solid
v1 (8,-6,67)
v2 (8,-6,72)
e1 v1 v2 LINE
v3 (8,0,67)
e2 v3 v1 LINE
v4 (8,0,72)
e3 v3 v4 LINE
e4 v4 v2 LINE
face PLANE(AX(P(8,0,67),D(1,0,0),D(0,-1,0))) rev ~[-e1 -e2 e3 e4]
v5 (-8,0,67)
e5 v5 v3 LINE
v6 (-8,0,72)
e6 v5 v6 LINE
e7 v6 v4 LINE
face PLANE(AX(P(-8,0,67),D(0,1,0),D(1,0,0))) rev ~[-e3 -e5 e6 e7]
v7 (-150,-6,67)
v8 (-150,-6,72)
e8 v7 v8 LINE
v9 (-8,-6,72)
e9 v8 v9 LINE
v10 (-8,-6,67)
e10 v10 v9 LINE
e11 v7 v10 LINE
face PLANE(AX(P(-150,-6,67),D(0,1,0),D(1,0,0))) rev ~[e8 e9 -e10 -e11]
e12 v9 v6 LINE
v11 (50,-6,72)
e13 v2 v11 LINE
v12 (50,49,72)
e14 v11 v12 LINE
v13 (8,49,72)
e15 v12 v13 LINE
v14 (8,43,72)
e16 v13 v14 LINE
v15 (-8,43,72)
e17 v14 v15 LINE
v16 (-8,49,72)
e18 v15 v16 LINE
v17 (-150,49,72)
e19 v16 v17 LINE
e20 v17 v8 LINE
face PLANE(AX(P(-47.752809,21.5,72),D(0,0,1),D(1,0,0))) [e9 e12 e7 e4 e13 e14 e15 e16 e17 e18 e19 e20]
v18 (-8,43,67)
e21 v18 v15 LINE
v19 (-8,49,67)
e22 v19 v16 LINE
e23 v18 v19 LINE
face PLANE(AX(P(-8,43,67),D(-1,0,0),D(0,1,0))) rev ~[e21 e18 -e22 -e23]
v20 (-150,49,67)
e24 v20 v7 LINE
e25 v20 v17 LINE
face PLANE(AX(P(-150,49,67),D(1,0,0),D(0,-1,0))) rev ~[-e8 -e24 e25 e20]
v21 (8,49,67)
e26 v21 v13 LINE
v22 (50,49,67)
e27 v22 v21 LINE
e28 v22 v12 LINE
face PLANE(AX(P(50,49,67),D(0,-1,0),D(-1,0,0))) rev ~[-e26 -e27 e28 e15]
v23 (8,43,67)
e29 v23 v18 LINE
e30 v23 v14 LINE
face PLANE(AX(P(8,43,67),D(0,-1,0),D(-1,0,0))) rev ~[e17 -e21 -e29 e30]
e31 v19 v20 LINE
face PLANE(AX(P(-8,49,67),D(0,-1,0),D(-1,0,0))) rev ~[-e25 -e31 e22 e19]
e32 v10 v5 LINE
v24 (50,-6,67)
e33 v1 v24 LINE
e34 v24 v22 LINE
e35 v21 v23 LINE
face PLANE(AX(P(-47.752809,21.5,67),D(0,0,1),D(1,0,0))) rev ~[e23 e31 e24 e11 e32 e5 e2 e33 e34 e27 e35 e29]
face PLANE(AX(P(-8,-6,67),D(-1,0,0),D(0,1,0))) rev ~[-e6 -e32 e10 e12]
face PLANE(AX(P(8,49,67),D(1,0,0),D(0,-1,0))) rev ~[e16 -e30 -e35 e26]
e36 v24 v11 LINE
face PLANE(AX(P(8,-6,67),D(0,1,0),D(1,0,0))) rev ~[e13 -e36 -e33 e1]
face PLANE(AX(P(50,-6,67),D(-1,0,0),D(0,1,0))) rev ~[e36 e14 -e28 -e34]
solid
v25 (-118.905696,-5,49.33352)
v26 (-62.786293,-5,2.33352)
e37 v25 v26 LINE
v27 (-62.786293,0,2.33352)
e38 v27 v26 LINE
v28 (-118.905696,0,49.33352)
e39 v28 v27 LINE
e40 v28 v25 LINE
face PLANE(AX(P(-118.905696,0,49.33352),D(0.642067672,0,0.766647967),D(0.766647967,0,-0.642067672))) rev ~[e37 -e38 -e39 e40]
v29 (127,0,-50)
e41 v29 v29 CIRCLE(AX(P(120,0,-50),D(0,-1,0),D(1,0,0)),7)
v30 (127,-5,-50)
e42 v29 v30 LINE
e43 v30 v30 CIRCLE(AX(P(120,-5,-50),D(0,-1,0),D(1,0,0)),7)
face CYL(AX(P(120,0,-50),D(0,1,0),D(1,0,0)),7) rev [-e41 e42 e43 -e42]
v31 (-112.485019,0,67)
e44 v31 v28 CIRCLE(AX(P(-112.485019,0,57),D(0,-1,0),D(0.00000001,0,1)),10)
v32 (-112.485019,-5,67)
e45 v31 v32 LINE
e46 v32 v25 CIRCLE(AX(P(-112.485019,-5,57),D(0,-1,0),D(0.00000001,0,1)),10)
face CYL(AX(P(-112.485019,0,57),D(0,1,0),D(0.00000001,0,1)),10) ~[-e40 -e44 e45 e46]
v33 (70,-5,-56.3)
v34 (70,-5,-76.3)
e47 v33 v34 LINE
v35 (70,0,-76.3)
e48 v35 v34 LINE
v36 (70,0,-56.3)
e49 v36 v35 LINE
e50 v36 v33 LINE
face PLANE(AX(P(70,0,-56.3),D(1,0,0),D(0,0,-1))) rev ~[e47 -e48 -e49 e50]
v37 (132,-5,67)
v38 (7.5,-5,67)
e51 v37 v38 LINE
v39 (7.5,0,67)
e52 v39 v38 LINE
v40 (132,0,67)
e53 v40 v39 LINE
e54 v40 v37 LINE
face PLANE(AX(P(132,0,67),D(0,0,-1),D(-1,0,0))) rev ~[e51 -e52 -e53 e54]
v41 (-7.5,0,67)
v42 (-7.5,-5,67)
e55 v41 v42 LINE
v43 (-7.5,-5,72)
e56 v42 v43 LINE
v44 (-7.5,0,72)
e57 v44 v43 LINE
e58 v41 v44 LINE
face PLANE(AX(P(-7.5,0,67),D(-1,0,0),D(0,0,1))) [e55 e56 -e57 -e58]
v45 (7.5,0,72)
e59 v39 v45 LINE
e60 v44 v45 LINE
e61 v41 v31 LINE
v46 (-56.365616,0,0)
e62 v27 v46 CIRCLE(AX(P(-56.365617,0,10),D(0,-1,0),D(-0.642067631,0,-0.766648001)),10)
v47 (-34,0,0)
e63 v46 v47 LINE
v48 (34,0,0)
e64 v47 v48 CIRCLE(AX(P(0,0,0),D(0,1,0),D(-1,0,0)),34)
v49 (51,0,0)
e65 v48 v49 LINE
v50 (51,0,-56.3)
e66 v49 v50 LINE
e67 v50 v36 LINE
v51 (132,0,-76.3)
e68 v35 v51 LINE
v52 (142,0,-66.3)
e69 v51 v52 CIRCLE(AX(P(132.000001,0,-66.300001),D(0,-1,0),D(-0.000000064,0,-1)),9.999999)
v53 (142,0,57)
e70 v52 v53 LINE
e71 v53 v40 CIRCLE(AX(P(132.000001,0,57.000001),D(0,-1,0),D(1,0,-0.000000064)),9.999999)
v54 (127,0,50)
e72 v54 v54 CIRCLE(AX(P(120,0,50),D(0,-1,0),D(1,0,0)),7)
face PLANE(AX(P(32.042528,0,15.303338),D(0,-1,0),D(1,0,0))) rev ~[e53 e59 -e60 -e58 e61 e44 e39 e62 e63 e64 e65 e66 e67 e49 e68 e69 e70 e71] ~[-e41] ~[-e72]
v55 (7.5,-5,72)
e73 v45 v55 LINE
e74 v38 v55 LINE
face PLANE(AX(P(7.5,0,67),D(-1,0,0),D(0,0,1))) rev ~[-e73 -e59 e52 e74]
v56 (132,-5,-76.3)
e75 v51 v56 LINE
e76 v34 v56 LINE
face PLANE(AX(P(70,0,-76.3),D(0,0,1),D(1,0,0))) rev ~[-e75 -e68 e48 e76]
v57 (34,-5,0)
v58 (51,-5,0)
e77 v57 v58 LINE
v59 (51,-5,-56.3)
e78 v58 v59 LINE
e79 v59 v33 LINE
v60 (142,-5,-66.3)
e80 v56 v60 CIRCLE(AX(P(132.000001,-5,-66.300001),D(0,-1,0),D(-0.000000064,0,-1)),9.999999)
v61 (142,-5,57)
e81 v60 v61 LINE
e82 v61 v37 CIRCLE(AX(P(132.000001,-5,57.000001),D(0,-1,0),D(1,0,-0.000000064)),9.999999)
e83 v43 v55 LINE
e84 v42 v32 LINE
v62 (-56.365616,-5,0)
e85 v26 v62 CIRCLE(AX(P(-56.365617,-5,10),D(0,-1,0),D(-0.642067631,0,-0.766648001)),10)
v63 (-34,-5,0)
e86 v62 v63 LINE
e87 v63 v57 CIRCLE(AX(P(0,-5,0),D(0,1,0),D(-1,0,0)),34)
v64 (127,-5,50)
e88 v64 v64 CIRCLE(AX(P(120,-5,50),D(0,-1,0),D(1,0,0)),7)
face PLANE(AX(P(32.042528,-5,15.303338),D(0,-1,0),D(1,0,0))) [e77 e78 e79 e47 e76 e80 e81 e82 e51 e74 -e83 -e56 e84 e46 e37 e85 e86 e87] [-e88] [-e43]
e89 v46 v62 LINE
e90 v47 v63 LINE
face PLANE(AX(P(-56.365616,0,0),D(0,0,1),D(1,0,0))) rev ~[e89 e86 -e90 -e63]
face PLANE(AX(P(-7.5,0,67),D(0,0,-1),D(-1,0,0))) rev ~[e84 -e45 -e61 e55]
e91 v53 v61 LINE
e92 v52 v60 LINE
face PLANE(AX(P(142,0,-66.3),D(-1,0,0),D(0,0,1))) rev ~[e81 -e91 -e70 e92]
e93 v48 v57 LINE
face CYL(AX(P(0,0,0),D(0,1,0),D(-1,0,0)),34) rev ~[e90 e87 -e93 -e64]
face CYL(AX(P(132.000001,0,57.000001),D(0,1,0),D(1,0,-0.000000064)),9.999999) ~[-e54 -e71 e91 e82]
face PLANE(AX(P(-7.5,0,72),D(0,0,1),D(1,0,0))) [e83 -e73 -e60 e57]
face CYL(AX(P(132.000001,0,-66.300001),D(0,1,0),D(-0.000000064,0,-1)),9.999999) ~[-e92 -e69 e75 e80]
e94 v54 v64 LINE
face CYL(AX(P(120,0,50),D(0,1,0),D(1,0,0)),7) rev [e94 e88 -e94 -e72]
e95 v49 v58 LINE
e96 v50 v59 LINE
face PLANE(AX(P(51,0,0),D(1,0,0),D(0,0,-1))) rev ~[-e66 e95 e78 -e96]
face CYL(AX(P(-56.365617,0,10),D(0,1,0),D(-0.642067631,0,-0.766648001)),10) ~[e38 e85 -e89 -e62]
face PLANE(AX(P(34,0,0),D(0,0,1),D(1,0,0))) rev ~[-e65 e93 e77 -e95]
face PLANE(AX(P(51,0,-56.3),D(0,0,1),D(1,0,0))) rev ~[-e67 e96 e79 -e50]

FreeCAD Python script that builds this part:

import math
import FreeCAD as App
import Part
import Sketcher
Q = App.Units.Quantity

doc = App.newDocument("Part")
body = doc.addObject("PartDesign::Body", "Body")

sketch1 = doc.addObject("Sketcher::SketchObject", "Sketch")
body.addObject(sketch1)
sketch1.AttachmentSupport = (doc.XZ_Plane, [""])
sketch1.MapMode = "FlatFace"
sketch1.addGeometry([
    Part.ArcOfCircle(Part.Circle(App.Vector(-112, 57, 0), App.Vector(0, 0, 1), 10), math.radians(90), math.radians(230)),
    Part.LineSegment(App.Vector(-119, 49, 0), App.Vector(-63, 2, 0)),
    Part.ArcOfCircle(Part.Circle(App.Vector(-56, 10, 0), App.Vector(0, 0, 1), 10), math.radians(-130), math.radians(-90)),
    Part.LineSegment(App.Vector(-56, 0, 0), App.Vector(-34, 0, 0)),
    Part.ArcOfCircle(Part.Circle(App.Vector(0, 0, 0), App.Vector(0, 0, 1), 34), math.radians(0), math.radians(180)),
    Part.LineSegment(App.Vector(34, 0, 0), App.Vector(51, 0, 0)),
    Part.LineSegment(App.Vector(51, 0, 0), App.Vector(51, -56, 0)),
    Part.LineSegment(App.Vector(51, -56, 0), App.Vector(70, -56, 0)),
    Part.LineSegment(App.Vector(70, -56, 0), App.Vector(70, -76, 0)),
    Part.LineSegment(App.Vector(70, -76, 0), App.Vector(132, -76, 0)),
    Part.ArcOfCircle(Part.Circle(App.Vector(132, -66, 0), App.Vector(0, 0, 1), 10), math.radians(-90), math.radians(0)),
    Part.LineSegment(App.Vector(142, -66, 0), App.Vector(142, 57, 0)),
    Part.ArcOfCircle(Part.Circle(App.Vector(132, 57, 0), App.Vector(0, 0, 1), 10), math.radians(0), math.radians(90)),
    Part.LineSegment(App.Vector(132, 67, 0), App.Vector(8, 67, 0)),
    Part.LineSegment(App.Vector(8, 67, 0), App.Vector(8, 72, 0)),
    Part.LineSegment(App.Vector(8, 72, 0), App.Vector(-8, 72, 0)),
    Part.LineSegment(App.Vector(-8, 72, 0), App.Vector(-8, 67, 0)),
    Part.LineSegment(App.Vector(-8, 67, 0), App.Vector(-112, 67, 0)),
    Part.Circle(App.Vector(120, -50, 0), App.Vector(0, 0, 1), 7),
    Part.Circle(App.Vector(120, 50, 0), App.Vector(0, 0, 1), 7),
], False)
sketch1.addConstraint([
    Sketcher.Constraint("Tangent", 0, 2, 1, 1),
    Sketcher.Constraint("Tangent", 1, 2, 2, 1),
    Sketcher.Constraint("Tangent", 2, 2, 3, 1),
    Sketcher.Constraint("Coincident", 3, 2, 4, 2),
    Sketcher.Constraint("Coincident", 4, 1, 5, 1),
    Sketcher.Constraint("Coincident", 5, 2, 6, 1),
    Sketcher.Constraint("Coincident", 6, 2, 7, 1),
    Sketcher.Constraint("Coincident", 7, 2, 8, 1),
    Sketcher.Constraint("Coincident", 8, 2, 9, 1),
    Sketcher.Constraint("Tangent", 9, 2, 10, 1),
    Sketcher.Constraint("Tangent", 10, 2, 11, 1),
    Sketcher.Constraint("Tangent", 11, 2, 12, 1),
    Sketcher.Constraint("Tangent", 12, 2, 13, 1),
    Sketcher.Constraint("Coincident", 13, 2, 14, 1),
    Sketcher.Constraint("Coincident", 14, 2, 15, 1),
    Sketcher.Constraint("Coincident", 15, 2, 16, 1),
    Sketcher.Constraint("Coincident", 16, 2, 17, 1),
    Sketcher.Constraint("Tangent", 17, 2, 0, 1),
    Sketcher.Constraint("Horizontal", 3),
    Sketcher.Constraint("Horizontal", 5),
    Sketcher.Constraint("Vertical", 6),
    Sketcher.Constraint("Horizontal", 7),
    Sketcher.Constraint("Vertical", 8),
    Sketcher.Constraint("Horizontal", 9),
    Sketcher.Constraint("Vertical", 11),
    Sketcher.Constraint("Horizontal", 13),
    Sketcher.Constraint("Vertical", 14),
    Sketcher.Constraint("Horizontal", 15),
    Sketcher.Constraint("Vertical", 16),
    Sketcher.Constraint("Horizontal", 17),
    Sketcher.Constraint("Coincident", 4, 3, -1, 1),
    Sketcher.Constraint("Equal", 0, 2),
    Sketcher.Constraint("Equal", 2, 10),
    Sketcher.Constraint("Equal", 10, 12),
    Sketcher.Constraint("Equal", 18, 19),
    Sketcher.Constraint("Symmetric", 13, 2, 16, 2, -2),
    Sketcher.Constraint("Symmetric", 18, 3, 19, 3, -1),
    Sketcher.Constraint("PointOnObject", 2, 2, -1),
    Sketcher.Constraint("PointOnObject", 4, 1, -1),
    Sketcher.Constraint("Diameter", 18, Q("14 mm")),
    Sketcher.Constraint("Radius", 0, Q("10 mm")),
    Sketcher.Constraint("Radius", 4, Q("34 mm")),
    Sketcher.Constraint("DistanceX", 5, 1, 5, 2, Q("17 mm")),
    Sketcher.Constraint("DistanceX", 7, 1, 7, 2, Q("19 mm")),
    Sketcher.Constraint("DistanceX", 9, 1, 9, 2, Q("62 mm")),
    Sketcher.Constraint("DistanceX", 15, 2, 15, 1, Q("15 mm")),
    Sketcher.Constraint("DistanceY", 8, 2, 8, 1, Q("20 mm")),
    Sketcher.Constraint("DistanceY", 14, 1, 14, 2, Q("5 mm")),
    Sketcher.Constraint("DistanceY", 6, 2, 6, 1, Q("56.3 mm")),
    Sketcher.Constraint("DistanceY", 11, 1, 11, 2, Q("123.3 mm")),
    Sketcher.Constraint("DistanceX", -1, 1, 18, 3, Q("120 mm")),
    Sketcher.Constraint("DistanceY", 18, 3, -1, 1, Q("50 mm")),
    Sketcher.Constraint("DistanceX", 17, 2, 17, 1, Q("104.985019 mm")),
    Sketcher.Constraint("DistanceX", 3, 1, 3, 2, Q("22.365616 mm")),
])
pad1 = doc.addObject("PartDesign::Pad", "Pad")
body.addObject(pad1)
pad1.Profile = sketch1
pad1.Length = 5
body2 = doc.addObject("PartDesign::Body", "Body001")

sketch2 = doc.addObject("Sketcher::SketchObject", "Sketch001")
body2.addObject(sketch2)
sketch2.AttachmentSupport = (doc.getObject("XY_Plane001"), [""])
sketch2.MapMode = "FlatFace"
sketch2.AttachmentOffset = App.Placement(App.Vector(0, 0, 67), App.Rotation())
sketch2.addGeometry([
    Part.LineSegment(App.Vector(8, -6, 0), App.Vector(50, -6, 0)),
    Part.LineSegment(App.Vector(50, -6, 0), App.Vector(50, 49, 0)),
    Part.LineSegment(App.Vector(50, 49, 0), App.Vector(8, 49, 0)),
    Part.LineSegment(App.Vector(8, 49, 0), App.Vector(8, 43, 0)),
    Part.LineSegment(App.Vector(8, 43, 0), App.Vector(-8, 43, 0)),
    Part.LineSegment(App.Vector(-8, 43, 0), App.Vector(-8, 49, 0)),
    Part.LineSegment(App.Vector(-8, 49, 0), App.Vector(-150, 49, 0)),
    Part.LineSegment(App.Vector(-150, 49, 0), App.Vector(-150, -6, 0)),
    Part.LineSegment(App.Vector(-150, -6, 0), App.Vector(-8, -6, 0)),
    Part.LineSegment(App.Vector(-8, -6, 0), App.Vector(-8, 0, 0)),
    Part.LineSegment(App.Vector(-8, 0, 0), App.Vector(8, 0, 0)),
    Part.LineSegment(App.Vector(8, 0, 0), App.Vector(8, -6, 0)),
], False)
sketch2.addConstraint([
    Sketcher.Constraint("Coincident", 0, 2, 1, 1),
    Sketcher.Constraint("Coincident", 1, 2, 2, 1),
    Sketcher.Constraint("Coincident", 2, 2, 3, 1),
    Sketcher.Constraint("Coincident", 3, 2, 4, 1),
    Sketcher.Constraint("Coincident", 4, 2, 5, 1),
    Sketcher.Constraint("Coincident", 5, 2, 6, 1),
    Sketcher.Constraint("Coincident", 6, 2, 7, 1),
    Sketcher.Constraint("Coincident", 7, 2, 8, 1),
    Sketcher.Constraint("Coincident", 8, 2, 9, 1),
    Sketcher.Constraint("Coincident", 9, 2, 10, 1),
    Sketcher.Constraint("Coincident", 10, 2, 11, 1),
    Sketcher.Constraint("Coincident", 11, 2, 0, 1),
    Sketcher.Constraint("Horizontal", 0),
    Sketcher.Constraint("Vertical", 1),
    Sketcher.Constraint("Horizontal", 2),
    Sketcher.Constraint("Vertical", 3),
    Sketcher.Constraint("Horizontal", 4),
    Sketcher.Constraint("Vertical", 5),
    Sketcher.Constraint("Horizontal", 6),
    Sketcher.Constraint("Vertical", 7),
    Sketcher.Constraint("Horizontal", 8),
    Sketcher.Constraint("Vertical", 9),
    Sketcher.Constraint("Horizontal", 10),
    Sketcher.Constraint("Vertical", 11),
    Sketcher.Constraint("Symmetric", 9, 2, 10, 2, -1, 1),
    Sketcher.Constraint("Symmetric", 2, 2, 5, 2, -2),
    Sketcher.Constraint("Horizontal", 0, 2, 7, 2),
    Sketcher.Constraint("Vertical", 5, 2, 8, 2),
    Sketcher.Constraint("Equal", 5, 9),
    Sketcher.Constraint("DistanceX", 0, 1, 0, 2, Q("42 mm")),
    Sketcher.Constraint("DistanceX", 4, 2, 4, 1, Q("16 mm")),
    Sketcher.Constraint("DistanceX", 6, 2, 6, 1, Q("142 mm")),
    Sketcher.Constraint("DistanceY", 1, 1, 1, 2, Q("55 mm")),
    Sketcher.Constraint("DistanceY", 3, 2, 3, 1, Q("6 mm")),
])
pad2 = doc.addObject("PartDesign::Pad", "Pad001")
body2.addObject(pad2)
pad2.Profile = sketch2
pad2.Length = 5

doc.recompute()
